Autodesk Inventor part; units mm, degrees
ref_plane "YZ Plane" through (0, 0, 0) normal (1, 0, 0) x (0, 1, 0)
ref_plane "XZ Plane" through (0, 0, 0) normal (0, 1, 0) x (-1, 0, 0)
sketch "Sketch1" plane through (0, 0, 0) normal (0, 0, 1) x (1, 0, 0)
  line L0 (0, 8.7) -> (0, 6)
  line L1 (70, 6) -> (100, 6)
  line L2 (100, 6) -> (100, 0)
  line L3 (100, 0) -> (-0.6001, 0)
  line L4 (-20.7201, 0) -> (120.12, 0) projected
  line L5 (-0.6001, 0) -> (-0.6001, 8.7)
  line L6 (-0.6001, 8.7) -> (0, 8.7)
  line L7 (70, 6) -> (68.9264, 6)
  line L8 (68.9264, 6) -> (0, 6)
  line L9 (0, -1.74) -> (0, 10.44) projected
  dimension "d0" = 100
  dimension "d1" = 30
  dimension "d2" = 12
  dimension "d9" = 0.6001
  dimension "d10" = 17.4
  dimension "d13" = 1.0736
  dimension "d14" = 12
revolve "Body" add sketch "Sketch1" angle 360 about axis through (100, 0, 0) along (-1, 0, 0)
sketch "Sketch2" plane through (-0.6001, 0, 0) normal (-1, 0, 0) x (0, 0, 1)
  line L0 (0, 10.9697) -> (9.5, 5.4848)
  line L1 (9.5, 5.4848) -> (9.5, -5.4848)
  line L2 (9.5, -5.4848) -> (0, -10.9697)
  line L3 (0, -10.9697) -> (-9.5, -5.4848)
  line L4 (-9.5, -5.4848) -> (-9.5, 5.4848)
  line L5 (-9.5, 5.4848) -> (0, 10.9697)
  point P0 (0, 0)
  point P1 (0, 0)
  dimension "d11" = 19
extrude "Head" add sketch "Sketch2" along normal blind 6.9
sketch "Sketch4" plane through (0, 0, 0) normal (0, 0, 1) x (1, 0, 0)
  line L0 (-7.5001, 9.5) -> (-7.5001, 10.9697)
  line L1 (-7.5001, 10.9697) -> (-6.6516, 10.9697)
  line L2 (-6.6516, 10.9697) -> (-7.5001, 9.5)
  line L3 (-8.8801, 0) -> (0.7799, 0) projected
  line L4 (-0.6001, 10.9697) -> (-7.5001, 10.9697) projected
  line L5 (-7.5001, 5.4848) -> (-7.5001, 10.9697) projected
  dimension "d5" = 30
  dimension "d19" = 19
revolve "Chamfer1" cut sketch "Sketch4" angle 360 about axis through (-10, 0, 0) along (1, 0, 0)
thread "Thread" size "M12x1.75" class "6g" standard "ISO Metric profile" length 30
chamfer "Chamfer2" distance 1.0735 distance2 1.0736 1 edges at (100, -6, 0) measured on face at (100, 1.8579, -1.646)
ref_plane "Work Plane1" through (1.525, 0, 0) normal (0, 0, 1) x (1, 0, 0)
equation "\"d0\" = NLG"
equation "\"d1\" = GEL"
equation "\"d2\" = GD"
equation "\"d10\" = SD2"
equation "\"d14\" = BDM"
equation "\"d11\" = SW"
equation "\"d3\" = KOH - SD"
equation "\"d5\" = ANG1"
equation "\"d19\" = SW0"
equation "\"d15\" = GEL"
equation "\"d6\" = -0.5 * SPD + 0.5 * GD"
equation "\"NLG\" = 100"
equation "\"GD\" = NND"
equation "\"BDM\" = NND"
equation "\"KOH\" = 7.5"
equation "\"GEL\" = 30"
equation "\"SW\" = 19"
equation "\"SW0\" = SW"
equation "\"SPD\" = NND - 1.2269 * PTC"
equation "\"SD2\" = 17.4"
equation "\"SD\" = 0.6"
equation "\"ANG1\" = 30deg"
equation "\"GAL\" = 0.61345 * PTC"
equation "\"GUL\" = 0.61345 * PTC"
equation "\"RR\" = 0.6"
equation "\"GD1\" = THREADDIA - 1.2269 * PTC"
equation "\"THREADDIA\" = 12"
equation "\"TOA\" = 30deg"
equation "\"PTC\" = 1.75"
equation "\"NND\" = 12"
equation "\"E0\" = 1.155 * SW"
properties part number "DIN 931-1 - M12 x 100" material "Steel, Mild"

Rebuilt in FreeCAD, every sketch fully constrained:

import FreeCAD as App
import Part
import Sketcher
Q = App.Units.Quantity


def edges_at(feature, points):
    """Names of the edges that pass closest to the given points."""
    edges = feature.Shape.Edges
    near = lambda p: min(range(len(edges)), key=lambda i: edges[i].distToShape(Part.Vertex(*p))[0])
    return sorted({f"Edge{near(p) + 1}" for p in points})


def add_polygon(sketch, points):
    """Adds a closed chain of lines whose ends are joined by coincident constraints."""
    first, n = sketch.GeometryCount, len(points)
    for a, b in zip(points, points[1:] + points[:1]):
        sketch.addGeometry(Part.LineSegment(App.Vector(*a, 0), App.Vector(*b, 0)), False)
    for i in range(n):
        sketch.addConstraint(Sketcher.Constraint("Coincident", first + i, 2, first + (i + 1) % n, 1))

doc = App.newDocument("Part")
body = doc.addObject("PartDesign::Body", "Body")

sketch1 = body.newObject("Sketcher::SketchObject", "Sketch")
sketch1.AttachmentSupport = (doc.getObject("XY_Plane"), [""])
sketch1.MapMode = "FlatFace"
add_polygon(sketch1, [(0, 6), (0, 8.7), (-0.6, 8.7), (-0.6, 0), (100, 0), (100, 6)])
sketch1.addConstraint(Sketcher.Constraint("Vertical", 0))
sketch1.addConstraint(Sketcher.Constraint("Horizontal", 1))
sketch1.addConstraint(Sketcher.Constraint("Vertical", 2))
sketch1.addConstraint(Sketcher.Constraint("Horizontal", 3))
sketch1.addConstraint(Sketcher.Constraint("Vertical", 4))
sketch1.addConstraint(Sketcher.Constraint("Horizontal", 5))
sketch1.addConstraint(Sketcher.Constraint("PointOnObject", 0, 2, -2))
sketch1.addConstraint(Sketcher.Constraint("PointOnObject", 2, 2, -1))
sketch1.addConstraint(Sketcher.Constraint("DistanceX", 5, 2, 5, 1, Q("100 mm")))
sketch1.addConstraint(Sketcher.Constraint("DistanceX", 1, 2, 1, 1, Q("0.6 mm")))
sketch1.addConstraint(Sketcher.Constraint("DistanceY", 4, 1, 4, 2, Q("6 mm")))
sketch1.addConstraint(Sketcher.Constraint("DistanceY", 0, 1, 0, 2, Q("2.7 mm")))
revolution = body.newObject("PartDesign::Revolution", "Revolution")
revolution.Profile = sketch1
revolution.ReferenceAxis = (sketch1, ["H_Axis"])
revolution.Angle = 360

sketch2 = body.newObject("Sketcher::SketchObject", "Sketch001")
sketch2.AttachmentSupport = (doc.getObject("YZ_Plane"), [""])
sketch2.MapMode = "FlatFace"
sketch2.AttachmentOffset = App.Placement(App.Vector(0, 0, -0.6001), App.Rotation())
add_polygon(sketch2, [(5, 10), (11, 0), (5, -10), (-5, -10), (-11, 0), (-5, 10)])
sketch2.addConstraint(Sketcher.Constraint("Horizontal", 2))
sketch2.addConstraint(Sketcher.Constraint("Horizontal", 5))
sketch2.addConstraint(Sketcher.Constraint("Symmetric", 0, 2, 3, 2, -1, 1))
sketch2.addConstraint(Sketcher.Constraint("Symmetric", 1, 2, 4, 2, -1, 1))
sketch2.addConstraint(Sketcher.Constraint("PointOnObject", 0, 2, -1))
sketch2.addConstraint(Sketcher.Constraint("Parallel", 0, 3))
sketch2.addConstraint(Sketcher.Constraint("Vertical", 2, 2, 4, 2))
sketch2.addConstraint(Sketcher.Constraint("DistanceY", 2, 2, 4, 2, Q("19 mm")))
sketch2.addConstraint(Sketcher.Constraint("Angle", 0, Q("-59.9997 deg")))
sketch2.addConstraint(Sketcher.Constraint("DistanceX", 2, 2, 2, 1, Q("10.9696 mm")))
pad1 = body.newObject("PartDesign::Pad", "Pad")
pad1.Profile = sketch2
pad1.Length = 6.9
pad1.Reversed = True

sketch3 = body.newObject("Sketcher::SketchObject", "Sketch002")
sketch3.AttachmentSupport = (doc.getObject("XY_Plane"), [""])
sketch3.MapMode = "FlatFace"
add_polygon(sketch3, [(-7.5, 11), (-7.5, 9.5), (-6.7, 11)])
sketch3.addConstraint(Sketcher.Constraint("Vertical", 0))
sketch3.addConstraint(Sketcher.Constraint("Horizontal", 2))
sketch3.addConstraint(Sketcher.Constraint("Angle", 1, Q("60.001 deg")))
sketch3.addConstraint(Sketcher.Constraint("DistanceX", 0, 2, -1, 1, Q("7.5 mm")))
sketch3.addConstraint(Sketcher.Constraint("DistanceY", -1, 1, 0, 2, Q("9.5 mm")))
sketch3.addConstraint(Sketcher.Constraint("Distance", 1, Q("1.697 mm")))
groove = body.newObject("PartDesign::Groove", "Groove")
groove.Profile = sketch3
groove.ReferenceAxis = (sketch3, ["H_Axis"])
groove.Angle = 360
doc.recompute()

chamfer = body.newObject("PartDesign::Chamfer", "Chamfer")
chamfer.Base = (groove, edges_at(groove, [(100, -6, 0)]))
chamfer.ChamferType = "Two distances"
chamfer.Size = 1.0735
chamfer.Size2 = 1.0736

doc.recompute()
